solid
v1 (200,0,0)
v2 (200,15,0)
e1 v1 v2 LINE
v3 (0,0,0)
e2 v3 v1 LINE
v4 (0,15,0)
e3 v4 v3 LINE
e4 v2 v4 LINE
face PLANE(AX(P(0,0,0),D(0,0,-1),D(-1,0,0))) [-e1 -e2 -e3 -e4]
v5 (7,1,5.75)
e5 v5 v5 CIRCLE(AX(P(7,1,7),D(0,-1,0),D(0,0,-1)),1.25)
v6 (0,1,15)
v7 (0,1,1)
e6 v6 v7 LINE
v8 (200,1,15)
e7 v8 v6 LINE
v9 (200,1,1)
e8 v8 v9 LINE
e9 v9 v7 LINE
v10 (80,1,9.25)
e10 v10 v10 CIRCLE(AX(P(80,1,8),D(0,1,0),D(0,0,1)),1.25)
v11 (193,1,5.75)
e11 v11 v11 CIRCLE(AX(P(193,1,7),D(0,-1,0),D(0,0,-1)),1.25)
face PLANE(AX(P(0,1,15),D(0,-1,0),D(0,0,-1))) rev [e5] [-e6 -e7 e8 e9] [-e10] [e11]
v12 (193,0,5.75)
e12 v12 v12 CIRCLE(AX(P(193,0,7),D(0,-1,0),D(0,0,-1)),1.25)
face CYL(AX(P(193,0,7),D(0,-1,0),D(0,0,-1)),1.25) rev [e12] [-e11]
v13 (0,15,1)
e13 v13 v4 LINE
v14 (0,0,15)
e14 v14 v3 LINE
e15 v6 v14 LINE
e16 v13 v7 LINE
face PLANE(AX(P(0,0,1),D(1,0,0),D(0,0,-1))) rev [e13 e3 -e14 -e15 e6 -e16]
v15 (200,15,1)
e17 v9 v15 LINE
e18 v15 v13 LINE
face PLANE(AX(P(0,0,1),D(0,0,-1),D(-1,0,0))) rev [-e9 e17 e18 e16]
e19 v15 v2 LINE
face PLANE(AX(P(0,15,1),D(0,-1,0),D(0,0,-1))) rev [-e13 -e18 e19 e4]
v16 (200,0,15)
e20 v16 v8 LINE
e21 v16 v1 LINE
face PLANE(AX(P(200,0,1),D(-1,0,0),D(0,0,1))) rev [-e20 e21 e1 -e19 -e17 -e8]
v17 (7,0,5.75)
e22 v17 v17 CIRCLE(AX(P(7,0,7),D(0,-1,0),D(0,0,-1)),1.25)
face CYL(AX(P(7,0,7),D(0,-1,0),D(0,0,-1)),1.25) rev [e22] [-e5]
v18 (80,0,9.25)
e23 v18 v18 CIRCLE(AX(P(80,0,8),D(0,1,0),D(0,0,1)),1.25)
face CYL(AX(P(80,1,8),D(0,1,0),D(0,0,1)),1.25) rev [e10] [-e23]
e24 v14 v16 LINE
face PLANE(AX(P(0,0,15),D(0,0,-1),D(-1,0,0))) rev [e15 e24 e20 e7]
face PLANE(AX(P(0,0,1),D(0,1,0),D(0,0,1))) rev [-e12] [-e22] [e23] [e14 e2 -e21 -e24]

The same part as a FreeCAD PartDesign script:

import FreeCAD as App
import Part
import Sketcher
Q = App.Units.Quantity


def add_polygon(sketch, points):
    """Adds a closed chain of lines whose ends are joined by coincident constraints."""
    first, n = sketch.GeometryCount, len(points)
    for a, b in zip(points, points[1:] + points[:1]):
        sketch.addGeometry(Part.LineSegment(App.Vector(*a, 0), App.Vector(*b, 0)), False)
    for i in range(n):
        sketch.addConstraint(Sketcher.Constraint("Coincident", first + i, 2, first + (i + 1) % n, 1))

doc = App.newDocument("Part")
params = doc.addObject("Spreadsheet::Sheet", "Params")
for row, (alias, value) in enumerate([
    ("sketch1_width", "200 mm"),
    ("sketch1_height", "15 mm"),
    ("pad1_length", "1 mm"),
    ("sketch2_width", "200 mm"),
    ("sketch2_height", "1 mm"),
    ("pad2_length", "14 mm"),
    ("sketch3_diameter", "2.5 mm"),
    ("hole_diameter", "2.5 mm"),
    ("sketch4_diameter", "2.5 mm"),
    ("hole2_diameter", "2.5 mm"),
], start=1):
    params.set(f"A{row}", alias)
    params.set(f"B{row}", "=" + value)
    params.setAlias(f"B{row}", alias)

body = doc.addObject("PartDesign::Body", "Body")

sketch1 = body.newObject("Sketcher::SketchObject", "Sketch")
sketch1.AttachmentSupport = (doc.getObject("XY_Plane"), [""])
sketch1.MapMode = "FlatFace"
add_polygon(sketch1, [(0, 15), (0, 0), (200, 0), (200, 15)])
sketch1.addConstraint([
    Sketcher.Constraint("Vertical", 0),
    Sketcher.Constraint("Horizontal", 1),
    Sketcher.Constraint("Vertical", 2),
    Sketcher.Constraint("Horizontal", 3),
    Sketcher.Constraint("Coincident", 0, 2, -1, 1),
    Sketcher.Constraint("DistanceX", 1, 1, 1, 2, Q("200 mm")),
    Sketcher.Constraint("DistanceY", 0, 2, 0, 1, Q("15 mm")),
])
sketch1.setExpression("Constraints[9]", "Params.sketch1_width")
sketch1.setExpression("Constraints[10]", "Params.sketch1_height")
pad1 = body.newObject("PartDesign::Pad", "Pad")
pad1.Profile = sketch1
pad1.setExpression("Length", "Params.pad1_length")

sketch2 = body.newObject("Sketcher::SketchObject", "Sketch001")
sketch2.AttachmentSupport = (doc.getObject("XY_Plane"), [""])
sketch2.MapMode = "FlatFace"
sketch2.AttachmentOffset = App.Placement(App.Vector(0, 0, 1), App.Rotation())
add_polygon(sketch2, [(0, 1), (0, 0), (200, 0), (200, 1)])
sketch2.addConstraint([
    Sketcher.Constraint("Vertical", 0),
    Sketcher.Constraint("Horizontal", 1),
    Sketcher.Constraint("Vertical", 2),
    Sketcher.Constraint("Horizontal", 3),
    Sketcher.Constraint("Coincident", 0, 2, -1, 1),
    Sketcher.Constraint("DistanceX", 1, 1, 1, 2, Q("200 mm")),
    Sketcher.Constraint("DistanceY", 0, 2, 0, 1, Q("1 mm")),
])
sketch2.setExpression("Constraints[9]", "Params.sketch2_width")
sketch2.setExpression("Constraints[10]", "Params.sketch2_height")
pad2 = body.newObject("PartDesign::Pad", "Pad001")
pad2.Profile = sketch2
pad2.setExpression("Length", "Params.pad2_length")

sketch3 = body.newObject("Sketcher::SketchObject", "Sketch002")
sketch3.AttachmentSupport = (doc.getObject("XZ_Plane"), [""])
sketch3.MapMode = "FlatFace"
sketch3.addGeometry(Part.Circle(App.Vector(193, 7, 0), App.Vector(0, 0, 1), 1.25), False)
sketch3.addConstraint([
    Sketcher.Constraint("Diameter", 0, Q("2.5 mm")),
    Sketcher.Constraint("DistanceX", -1, 1, 0, 3, Q("193 mm")),
    Sketcher.Constraint("DistanceY", -1, 1, 0, 3, Q("7 mm")),
])
sketch3.setExpression("Constraints[0]", "Params.sketch3_diameter")
doc.recompute()
hole = body.newObject("PartDesign::Hole", "Hole")
hole.Profile = sketch3
hole.ThreadType = "None"
hole.setExpression("Diameter", "Params.hole_diameter")
hole.DepthType = "ThroughAll"

sketch4 = body.newObject("Sketcher::SketchObject", "Sketch003")
sketch4.AttachmentSupport = (doc.getObject("XZ_Plane"), [""])
sketch4.MapMode = "FlatFace"
sketch4.AttachmentOffset = App.Placement(App.Vector(0, 0, -1), App.Rotation())
sketch4.addGeometry(Part.Circle(App.Vector(80, 8, 0), App.Vector(0, 0, 1), 1.25), False)
sketch4.addConstraint([
    Sketcher.Constraint("Diameter", 0, Q("2.5 mm")),
    Sketcher.Constraint("DistanceX", -1, 1, 0, 3, Q("80 mm")),
    Sketcher.Constraint("DistanceY", -1, 1, 0, 3, Q("8 mm")),
])
sketch4.setExpression("Constraints[0]", "Params.sketch4_diameter")
doc.recompute()
hole2 = body.newObject("PartDesign::Hole", "Hole001")
hole2.Profile = sketch4
hole2.ThreadType = "None"
hole2.setExpression("Diameter", "Params.hole2_diameter")
hole2.DepthType = "ThroughAll"
hole2.Reversed = True
doc.recompute()

datumplane = body.newObject("PartDesign::Plane", "DatumPlane")
datumplane.AttachmentSupport = (doc.getObject("YZ_Plane"), [""])
datumplane.MapMode = "FlatFace"
datumplane.AttachmentOffset = App.Placement(App.Vector(0, 0, 100), App.Rotation())
mirrored = body.newObject("PartDesign::Mirrored", "Mirrored")
mirrored.Originals = [hole]
mirrored.MirrorPlane = (datumplane, [""])
body.Tip = mirrored

doc.recompute()
